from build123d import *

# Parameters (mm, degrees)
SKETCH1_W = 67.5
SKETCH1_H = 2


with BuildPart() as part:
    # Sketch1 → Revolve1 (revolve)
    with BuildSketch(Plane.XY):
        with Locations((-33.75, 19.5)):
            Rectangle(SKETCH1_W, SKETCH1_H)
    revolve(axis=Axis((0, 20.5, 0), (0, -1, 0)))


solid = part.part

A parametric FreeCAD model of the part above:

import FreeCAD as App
import Part
import Sketcher

V = App.Vector
Q = App.Units.Quantity


def add_polygon(sketch, points):
    """Adds a closed chain of lines whose ends are joined by coincident constraints."""
    first, n = sketch.GeometryCount, len(points)
    for a, b in zip(points, points[1:] + points[:1]):
        sketch.addGeometry(Part.LineSegment(App.Vector(*a, 0), App.Vector(*b, 0)), False)
    for i in range(n):
        sketch.addConstraint(Sketcher.Constraint("Coincident", first + i, 2, first + (i + 1) % n, 1))

doc = App.newDocument("Part")
body = doc.addObject("PartDesign::Body", "Body")

sketch1 = doc.addObject("Sketcher::SketchObject", "Sketch")
body.addObject(sketch1)
sketch1.AttachmentSupport = (doc.XY_Plane, [""])
sketch1.MapMode = "FlatFace"
add_polygon(sketch1, [(-67.5, 20.5), (-67.5, 18.5), (0, 18.5), (0, 20.5)])
sketch1.addConstraint([
    Sketcher.Constraint("Vertical", 0),
    Sketcher.Constraint("Horizontal", 1),
    Sketcher.Constraint("Vertical", 2),
    Sketcher.Constraint("Horizontal", 3),
    Sketcher.Constraint("PointOnObject", 1, 2, -2),
    Sketcher.Constraint("DistanceY", 0, 2, 0, 1, Q("2 mm")),
    Sketcher.Constraint("DistanceX", 1, 1, 1, 2, Q("67.5 mm")),
    Sketcher.Constraint("DistanceY", -1, 1, 0, 2, Q("18.5 mm")),
])
revolution = doc.addObject("PartDesign::Revolution", "Revolution")
body.addObject(revolution)
revolution.Profile = sketch1
revolution.ReferenceAxis = (sketch1, ["V_Axis"])
revolution.Angle = 360

doc.recompute()
